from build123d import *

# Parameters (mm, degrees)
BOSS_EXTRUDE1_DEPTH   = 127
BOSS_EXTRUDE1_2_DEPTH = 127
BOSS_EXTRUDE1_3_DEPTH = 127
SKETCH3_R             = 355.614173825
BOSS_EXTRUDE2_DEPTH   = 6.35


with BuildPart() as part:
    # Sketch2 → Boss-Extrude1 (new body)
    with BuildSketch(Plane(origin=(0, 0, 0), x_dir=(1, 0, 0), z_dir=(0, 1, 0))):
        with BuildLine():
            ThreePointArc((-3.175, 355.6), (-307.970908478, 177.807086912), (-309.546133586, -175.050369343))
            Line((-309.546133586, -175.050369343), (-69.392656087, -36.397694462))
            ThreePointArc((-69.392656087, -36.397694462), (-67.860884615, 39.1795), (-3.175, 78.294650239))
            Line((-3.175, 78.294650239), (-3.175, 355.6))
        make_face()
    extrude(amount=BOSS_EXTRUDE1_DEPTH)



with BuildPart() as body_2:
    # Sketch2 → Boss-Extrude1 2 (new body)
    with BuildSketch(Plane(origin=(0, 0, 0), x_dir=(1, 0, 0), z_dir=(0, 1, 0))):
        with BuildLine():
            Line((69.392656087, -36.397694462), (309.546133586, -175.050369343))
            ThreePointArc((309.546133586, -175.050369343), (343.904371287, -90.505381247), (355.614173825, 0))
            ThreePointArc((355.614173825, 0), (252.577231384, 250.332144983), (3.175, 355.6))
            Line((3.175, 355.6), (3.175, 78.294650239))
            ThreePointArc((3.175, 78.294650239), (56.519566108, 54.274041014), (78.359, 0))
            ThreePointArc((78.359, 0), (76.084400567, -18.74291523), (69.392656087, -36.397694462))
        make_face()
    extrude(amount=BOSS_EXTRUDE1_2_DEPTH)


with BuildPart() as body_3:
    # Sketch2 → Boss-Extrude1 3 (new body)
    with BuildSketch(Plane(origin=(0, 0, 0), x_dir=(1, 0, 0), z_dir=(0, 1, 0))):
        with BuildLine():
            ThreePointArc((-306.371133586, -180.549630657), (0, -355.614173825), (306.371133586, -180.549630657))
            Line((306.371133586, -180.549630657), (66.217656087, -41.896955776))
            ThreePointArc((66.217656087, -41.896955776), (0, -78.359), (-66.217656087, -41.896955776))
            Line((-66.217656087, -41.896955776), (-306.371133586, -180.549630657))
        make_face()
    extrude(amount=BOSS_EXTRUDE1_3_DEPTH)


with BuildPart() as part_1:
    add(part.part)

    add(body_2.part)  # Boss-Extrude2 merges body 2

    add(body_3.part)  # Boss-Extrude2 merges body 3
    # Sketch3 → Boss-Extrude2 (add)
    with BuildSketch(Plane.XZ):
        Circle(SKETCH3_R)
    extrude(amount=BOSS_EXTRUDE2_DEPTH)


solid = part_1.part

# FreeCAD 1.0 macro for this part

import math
import FreeCAD as App
import Part
import Sketcher

V = App.Vector
Q = App.Units.Quantity

doc = App.newDocument("Part")
params = doc.addObject("Spreadsheet::Sheet", "Params")
for row, (alias, value) in enumerate([
    ("sketch1_radius", "3.085 in"),
    ("pad1_length", "5 in"),
    ("sketch2_radius", "3.085 in"),
    ("pad2_length", "5 in"),
    ("sketch3_radius", "3.085 in"),
    ("pad3_length", "5 in"),
    ("pad4_length", "0.25 in"),
], start=1):
    params.set(f"A{row}", alias)
    params.set(f"B{row}", "=" + value)
    params.setAlias(f"B{row}", alias)

body = doc.addObject("PartDesign::Body", "Body")

# Sketch on XZ plane
sketch1 = body.newObject("Sketcher::SketchObject", "Sketch")
sketch1.AttachmentSupport = (doc.getObject("XZ_Plane"), [""])
sketch1.MapMode = "FlatFace"
sketch1.addGeometry(Part.ArcOfCircle(Part.Circle(V(0, 0, 0), V(0, 0, 1), 355.614174), math.radians(150.511556), math.radians(269.488444)), False)
sketch1.addGeometry(Part.LineSegment(V(-309.546134, 175.050369, 0), V(-69.392656, 36.397694, 0)), False)
sketch1.addGeometry(Part.ArcOfCircle(Part.Circle(V(0, 0, 0), V(0, 0, 1), 78.359), math.radians(152.322183), math.radians(267.677817)), False)
sketch1.addGeometry(Part.LineSegment(V(-3.175, -78.29465, 0), V(-3.175, -355.6, 0)), False)
sketch1.addConstraint(Sketcher.Constraint("Coincident", 0, 1, 1, 1))
sketch1.addConstraint(Sketcher.Constraint("Coincident", 1, 2, 2, 1))
sketch1.addConstraint(Sketcher.Constraint("Coincident", 2, 2, 3, 1))
sketch1.addConstraint(Sketcher.Constraint("Coincident", 3, 2, 0, 2))
sketch1.addConstraint(Sketcher.Constraint("Vertical", 3))
sketch1.addConstraint(Sketcher.Constraint("Coincident", 0, 3, -1, 1))
sketch1.addConstraint(Sketcher.Constraint("Coincident", 2, 3, -1, 1))
sketch1.addConstraint(Sketcher.Constraint("DistanceY", 3, 2, -1, 1, Q("14 in")))
sketch1.addConstraint(Sketcher.Constraint("Angle", 1, Q("-30 deg")))
sketch1.addConstraint(Sketcher.Constraint("Radius", 2, Q("3.085 in")))
sketch1.addConstraint(Sketcher.Constraint("DistanceX", 2, 2, -1, 1, Q("0.125 in")))
sketch1.addConstraint(Sketcher.Constraint("Distance", 1, 277.30535))
sketch1.setExpression("Constraints[9]", "Params.sketch1_radius")
pad1 = body.newObject("PartDesign::Pad", "Pad")
pad1.Profile = sketch1
pad1.setExpression("Length", "Params.pad1_length")
pad1.Reversed = True
body2 = doc.addObject("PartDesign::Body", "Body001")

# Sketch on XZ plane
sketch2 = body2.newObject("Sketcher::SketchObject", "Sketch001")
sketch2.AttachmentSupport = (doc.getObject("XZ_Plane001"), [""])
sketch2.MapMode = "FlatFace"
sketch2.addGeometry(Part.LineSegment(V(69.392656, 36.397694, 0), V(309.546134, 175.050369, 0)), False)
sketch2.addGeometry(Part.ArcOfCircle(Part.Circle(V(0, 0, 0), V(0, 0, 1), 355.614174), math.radians(0), math.radians(29.488444)), False)
sketch2.addGeometry(Part.ArcOfCircle(Part.Circle(V(0, 0, 0), V(0, 0, 1), 355.614174), math.radians(-89.488444), math.radians(0)), False)
sketch2.addGeometry(Part.LineSegment(V(3.175, -355.6, 0), V(3.175, -78.29465, 0)), False)
sketch2.addGeometry(Part.ArcOfCircle(Part.Circle(V(0, 0, 0), V(0, 0, 1), 78.359), math.radians(-87.677817), math.radians(0)), False)
sketch2.addGeometry(Part.ArcOfCircle(Part.Circle(V(0, 0, 0), V(0, 0, 1), 78.359), math.radians(0), math.radians(27.677817)), False)
sketch2.addConstraint(Sketcher.Constraint("Coincident", 0, 2, 1, 2))
sketch2.addConstraint(Sketcher.Constraint("Tangent", 1, 1, 2, 2))
sketch2.addConstraint(Sketcher.Constraint("Coincident", 2, 1, 3, 1))
sketch2.addConstraint(Sketcher.Constraint("Coincident", 3, 2, 4, 1))
sketch2.addConstraint(Sketcher.Constraint("Tangent", 4, 2, 5, 1))
sketch2.addConstraint(Sketcher.Constraint("Coincident", 5, 2, 0, 1))
sketch2.addConstraint(Sketcher.Constraint("Vertical", 3))
sketch2.addConstraint(Sketcher.Constraint("Coincident", 1, 3, -1, 1))
sketch2.addConstraint(Sketcher.Constraint("Coincident", 4, 3, -1, 1))
sketch2.addConstraint(Sketcher.Constraint("Equal", 1, 2))
sketch2.addConstraint(Sketcher.Constraint("Equal", 4, 5))
sketch2.addConstraint(Sketcher.Constraint("PointOnObject", 1, 1, -1))
sketch2.addConstraint(Sketcher.Constraint("PointOnObject", 4, 2, -1))
sketch2.addConstraint(Sketcher.Constraint("DistanceY", 2, 1, -1, 1, Q("14 in")))
sketch2.addConstraint(Sketcher.Constraint("Angle", 0, Q("30 deg")))
sketch2.addConstraint(Sketcher.Constraint("Radius", 4, Q("3.085 in")))
sketch2.addConstraint(Sketcher.Constraint("DistanceX", 3, 2, 4, 2, Q("2.96 in")))
sketch2.addConstraint(Sketcher.Constraint("Distance", 0, 277.30535))
sketch2.setExpression("Constraints[15]", "Params.sketch2_radius")
pad2 = body2.newObject("PartDesign::Pad", "Pad001")
pad2.Profile = sketch2
pad2.setExpression("Length", "Params.pad2_length")
pad2.Reversed = True
body3 = doc.addObject("PartDesign::Body", "Body002")

# Sketch on XZ plane
sketch3 = body3.newObject("Sketcher::SketchObject", "Sketch002")
sketch3.AttachmentSupport = (doc.getObject("XZ_Plane002"), [""])
sketch3.MapMode = "FlatFace"
sketch3.addGeometry(Part.ArcOfCircle(Part.Circle(V(0, 0, 0), V(0, 0, 1), 355.614174), math.radians(30.511556), math.radians(149.488444)), False)
sketch3.addGeometry(Part.LineSegment(V(306.371134, 180.549631, 0), V(66.217656, 41.896956, 0)), False)
sketch3.addGeometry(Part.ArcOfCircle(Part.Circle(V(0, 0, 0), V(0, 0, 1), 78.359), math.radians(32.322183), math.radians(147.677817)), False)
sketch3.addGeometry(Part.LineSegment(V(-66.217656, 41.896956, 0), V(-306.371134, 180.549631, 0)), False)
sketch3.addConstraint(Sketcher.Constraint("Coincident", 0, 1, 1, 1))
sketch3.addConstraint(Sketcher.Constraint("Coincident", 1, 2, 2, 1))
sketch3.addConstraint(Sketcher.Constraint("Coincident", 2, 2, 3, 1))
sketch3.addConstraint(Sketcher.Constraint("Coincident", 3, 2, 0, 2))
sketch3.addConstraint(Sketcher.Constraint("Coincident", 0, 3, -1, 1))
sketch3.addConstraint(Sketcher.Constraint("Coincident", 2, 3, -1, 1))
sketch3.addConstraint(Sketcher.Constraint("Horizontal", 1, 2, 2, 2))
sketch3.addConstraint(Sketcher.Constraint("Horizontal", 0, 1, 3, 2))
sketch3.addConstraint(Sketcher.Constraint("Angle", 1, Q("-150 deg")))
sketch3.addConstraint(Sketcher.Constraint("Radius", 2, Q("3.085 in")))
sketch3.addConstraint(Sketcher.Constraint("Radius", 0, 355.614174))
sketch3.addConstraint(Sketcher.Constraint("Distance", 1, 277.30535))
sketch3.setExpression("Constraints[9]", "Params.sketch3_radius")
pad3 = body3.newObject("PartDesign::Pad", "Pad002")
pad3.Profile = sketch3
pad3.setExpression("Length", "Params.pad3_length")
pad3.Reversed = True
body.AllowCompound = True
doc.recompute()

boolean = body.newObject("PartDesign::Boolean", "Boolean")
boolean.Type = "Fuse"
boolean.addObjects([body2])
doc.recompute()

boolean2 = body.newObject("PartDesign::Boolean", "Boolean001")
boolean2.Type = "Fuse"
boolean2.addObjects([body3])

# Sketch on XZ plane
sketch4 = body.newObject("Sketcher::SketchObject", "Sketch003")
sketch4.AttachmentSupport = (doc.getObject("XZ_Plane"), [""])
sketch4.MapMode = "FlatFace"
sketch4.addGeometry(Part.Circle(V(0, 0, 0), V(0, 0, 1), 355.614174), False)
sketch4.addConstraint(Sketcher.Constraint("Coincident", 0, 3, -1, 1))
sketch4.addConstraint(Sketcher.Constraint("Diameter", 0, 711.228348))
pad4 = body.newObject("PartDesign::Pad", "Pad003")
pad4.Profile = sketch4
pad4.setExpression("Length", "Params.pad4_length")

doc.recompute()
